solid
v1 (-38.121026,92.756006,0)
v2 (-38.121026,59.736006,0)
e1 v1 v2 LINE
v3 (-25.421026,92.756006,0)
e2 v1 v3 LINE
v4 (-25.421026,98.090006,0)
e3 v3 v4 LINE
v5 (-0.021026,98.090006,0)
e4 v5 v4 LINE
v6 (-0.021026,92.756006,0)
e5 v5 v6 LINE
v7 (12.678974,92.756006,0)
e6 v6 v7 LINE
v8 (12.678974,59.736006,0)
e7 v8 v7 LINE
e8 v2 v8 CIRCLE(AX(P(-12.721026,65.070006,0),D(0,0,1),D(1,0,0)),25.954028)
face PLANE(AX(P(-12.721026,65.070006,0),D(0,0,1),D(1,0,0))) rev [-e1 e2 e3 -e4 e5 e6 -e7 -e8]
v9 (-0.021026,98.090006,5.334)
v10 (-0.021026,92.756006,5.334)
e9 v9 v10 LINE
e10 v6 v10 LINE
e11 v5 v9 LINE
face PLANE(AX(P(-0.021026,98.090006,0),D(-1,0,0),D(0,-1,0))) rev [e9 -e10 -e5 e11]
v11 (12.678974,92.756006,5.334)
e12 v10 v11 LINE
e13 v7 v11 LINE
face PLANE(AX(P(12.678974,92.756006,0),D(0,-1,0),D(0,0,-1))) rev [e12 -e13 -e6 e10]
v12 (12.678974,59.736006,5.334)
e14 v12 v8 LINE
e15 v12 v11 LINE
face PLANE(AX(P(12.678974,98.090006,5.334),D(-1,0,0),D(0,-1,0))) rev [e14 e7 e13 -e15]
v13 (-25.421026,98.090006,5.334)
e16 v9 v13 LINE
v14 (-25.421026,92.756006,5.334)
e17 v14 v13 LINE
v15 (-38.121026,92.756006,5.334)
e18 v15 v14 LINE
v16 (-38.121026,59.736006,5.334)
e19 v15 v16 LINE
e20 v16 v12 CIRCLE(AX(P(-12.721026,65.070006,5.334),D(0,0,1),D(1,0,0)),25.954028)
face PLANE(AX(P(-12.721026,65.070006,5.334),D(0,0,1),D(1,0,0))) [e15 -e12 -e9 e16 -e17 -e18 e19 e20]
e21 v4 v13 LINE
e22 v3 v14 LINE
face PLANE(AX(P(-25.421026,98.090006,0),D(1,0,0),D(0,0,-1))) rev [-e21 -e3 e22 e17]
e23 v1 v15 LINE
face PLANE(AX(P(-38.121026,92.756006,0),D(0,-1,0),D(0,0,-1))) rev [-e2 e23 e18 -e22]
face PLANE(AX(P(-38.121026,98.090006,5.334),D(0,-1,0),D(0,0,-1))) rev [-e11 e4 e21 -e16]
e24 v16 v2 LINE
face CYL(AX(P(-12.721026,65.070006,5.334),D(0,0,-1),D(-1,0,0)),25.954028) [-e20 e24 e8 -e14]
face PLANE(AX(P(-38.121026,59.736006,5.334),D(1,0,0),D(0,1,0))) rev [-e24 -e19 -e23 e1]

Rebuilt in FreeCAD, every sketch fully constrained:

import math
import FreeCAD as App
import Part
import Sketcher

V = App.Vector
Q = App.Units.Quantity


def add_polygon(sketch, points):
    """Adds a closed chain of lines whose ends are joined by coincident constraints."""
    first, n = sketch.GeometryCount, len(points)
    for a, b in zip(points, points[1:] + points[:1]):
        sketch.addGeometry(Part.LineSegment(App.Vector(*a, 0), App.Vector(*b, 0)), False)
    for i in range(n):
        sketch.addConstraint(Sketcher.Constraint("Coincident", first + i, 2, first + (i + 1) % n, 1))

doc = App.newDocument("Part")
body = doc.addObject("PartDesign::Body", "Body")

# Sketch on XY plane
sketch1 = body.newObject("Sketcher::SketchObject", "Sketch")
sketch1.AttachmentSupport = (doc.getObject("XY_Plane"), [""])
sketch1.MapMode = "FlatFace"
sketch1.addGeometry([
    Part.LineSegment(V(-38.121026, 98.090006, 0), V(-38.121026, 59.736006, 0)),
    Part.ArcOfCircle(Part.Circle(V(-12.721026, 65.070006, 0), V(0, 0, 1), 25.954028), math.radians(-168.140221), math.radians(-11.859779)),
    Part.LineSegment(V(12.678974, 59.736006, 0), V(12.678974, 98.090006, 0)),
    Part.LineSegment(V(12.678974, 98.090006, 0), V(-38.121026, 98.090006, 0)),
], False)
sketch1.addConstraint([
    Sketcher.Constraint("Coincident", 0, 2, 1, 1),
    Sketcher.Constraint("Coincident", 1, 2, 2, 1),
    Sketcher.Constraint("Coincident", 2, 2, 3, 1),
    Sketcher.Constraint("Coincident", 3, 2, 0, 1),
    Sketcher.Constraint("Vertical", 0),
    Sketcher.Constraint("Vertical", 2),
    Sketcher.Constraint("Horizontal", 3),
    Sketcher.Constraint("Horizontal", 0, 2, 1, 2),
    Sketcher.Constraint("DistanceX", 3, 2, 3, 1, Q("2 in")),
    Sketcher.Constraint("DistanceY", 0, 2, 0, 1, Q("1.51 in")),
    Sketcher.Constraint("DistanceY", 1, 3, 2, 2, Q("1.3 in")),
    Sketcher.Constraint("DistanceX", 1, 3, -1, 1, Q("12.721026 mm")),
    Sketcher.Constraint("DistanceY", -1, 1, 1, 3, Q("65.070006 mm")),
])
pad1 = body.newObject("PartDesign::Pad", "Pad")
pad1.Profile = sketch1
pad1.Length = Q("0.21 in")

# Sketch on XY plane
sketch2 = body.newObject("Sketcher::SketchObject", "Sketch001")
sketch2.AttachmentSupport = (doc.getObject("XY_Plane"), [""])
sketch2.MapMode = "FlatFace"
sketch2.AttachmentOffset = App.Placement(V(0, 0, 0.21 * 25.4), App.Rotation())
add_polygon(sketch2, [(-38.121026, 98.090006), (-38.121026, 92.756006), (-25.421026, 92.756006), (-25.421026, 98.090006)])  # lines 0-3
add_polygon(sketch2, [(-0.021026, 98.090006), (-0.021026, 92.756006), (12.678974, 92.756006), (12.678974, 98.090006)])  # lines 4-7
sketch2.addConstraint([
    Sketcher.Constraint("Vertical", 0),
    Sketcher.Constraint("Horizontal", 1),
    Sketcher.Constraint("Vertical", 2),
    Sketcher.Constraint("Horizontal", 3),
    Sketcher.Constraint("Vertical", 4),
    Sketcher.Constraint("Horizontal", 5),
    Sketcher.Constraint("Vertical", 6),
    Sketcher.Constraint("Horizontal", 7),
    Sketcher.Constraint("Horizontal", 1, 2, 4, 2),
    Sketcher.Constraint("Horizontal", 3, 2, 6, 2),
    Sketcher.Constraint("Equal", 3, 5),
    Sketcher.Constraint("DistanceX", 1, 1, 1, 2, Q("0.5 in")),
    Sketcher.Constraint("DistanceX", 1, 2, 4, 2, Q("1 in")),
    Sketcher.Constraint("DistanceY", 0, 2, 0, 1, Q("0.21 in")),
    Sketcher.Constraint("DistanceX", 0, 2, -1, 1, Q("38.121026 mm")),
    Sketcher.Constraint("DistanceY", -1, 1, 0, 2, Q("92.756006 mm")),
])
pocket1 = body.newObject("PartDesign::Pocket", "Pocket")
pocket1.Profile = sketch2
pocket1.Type = "ThroughAll"

doc.recompute()
